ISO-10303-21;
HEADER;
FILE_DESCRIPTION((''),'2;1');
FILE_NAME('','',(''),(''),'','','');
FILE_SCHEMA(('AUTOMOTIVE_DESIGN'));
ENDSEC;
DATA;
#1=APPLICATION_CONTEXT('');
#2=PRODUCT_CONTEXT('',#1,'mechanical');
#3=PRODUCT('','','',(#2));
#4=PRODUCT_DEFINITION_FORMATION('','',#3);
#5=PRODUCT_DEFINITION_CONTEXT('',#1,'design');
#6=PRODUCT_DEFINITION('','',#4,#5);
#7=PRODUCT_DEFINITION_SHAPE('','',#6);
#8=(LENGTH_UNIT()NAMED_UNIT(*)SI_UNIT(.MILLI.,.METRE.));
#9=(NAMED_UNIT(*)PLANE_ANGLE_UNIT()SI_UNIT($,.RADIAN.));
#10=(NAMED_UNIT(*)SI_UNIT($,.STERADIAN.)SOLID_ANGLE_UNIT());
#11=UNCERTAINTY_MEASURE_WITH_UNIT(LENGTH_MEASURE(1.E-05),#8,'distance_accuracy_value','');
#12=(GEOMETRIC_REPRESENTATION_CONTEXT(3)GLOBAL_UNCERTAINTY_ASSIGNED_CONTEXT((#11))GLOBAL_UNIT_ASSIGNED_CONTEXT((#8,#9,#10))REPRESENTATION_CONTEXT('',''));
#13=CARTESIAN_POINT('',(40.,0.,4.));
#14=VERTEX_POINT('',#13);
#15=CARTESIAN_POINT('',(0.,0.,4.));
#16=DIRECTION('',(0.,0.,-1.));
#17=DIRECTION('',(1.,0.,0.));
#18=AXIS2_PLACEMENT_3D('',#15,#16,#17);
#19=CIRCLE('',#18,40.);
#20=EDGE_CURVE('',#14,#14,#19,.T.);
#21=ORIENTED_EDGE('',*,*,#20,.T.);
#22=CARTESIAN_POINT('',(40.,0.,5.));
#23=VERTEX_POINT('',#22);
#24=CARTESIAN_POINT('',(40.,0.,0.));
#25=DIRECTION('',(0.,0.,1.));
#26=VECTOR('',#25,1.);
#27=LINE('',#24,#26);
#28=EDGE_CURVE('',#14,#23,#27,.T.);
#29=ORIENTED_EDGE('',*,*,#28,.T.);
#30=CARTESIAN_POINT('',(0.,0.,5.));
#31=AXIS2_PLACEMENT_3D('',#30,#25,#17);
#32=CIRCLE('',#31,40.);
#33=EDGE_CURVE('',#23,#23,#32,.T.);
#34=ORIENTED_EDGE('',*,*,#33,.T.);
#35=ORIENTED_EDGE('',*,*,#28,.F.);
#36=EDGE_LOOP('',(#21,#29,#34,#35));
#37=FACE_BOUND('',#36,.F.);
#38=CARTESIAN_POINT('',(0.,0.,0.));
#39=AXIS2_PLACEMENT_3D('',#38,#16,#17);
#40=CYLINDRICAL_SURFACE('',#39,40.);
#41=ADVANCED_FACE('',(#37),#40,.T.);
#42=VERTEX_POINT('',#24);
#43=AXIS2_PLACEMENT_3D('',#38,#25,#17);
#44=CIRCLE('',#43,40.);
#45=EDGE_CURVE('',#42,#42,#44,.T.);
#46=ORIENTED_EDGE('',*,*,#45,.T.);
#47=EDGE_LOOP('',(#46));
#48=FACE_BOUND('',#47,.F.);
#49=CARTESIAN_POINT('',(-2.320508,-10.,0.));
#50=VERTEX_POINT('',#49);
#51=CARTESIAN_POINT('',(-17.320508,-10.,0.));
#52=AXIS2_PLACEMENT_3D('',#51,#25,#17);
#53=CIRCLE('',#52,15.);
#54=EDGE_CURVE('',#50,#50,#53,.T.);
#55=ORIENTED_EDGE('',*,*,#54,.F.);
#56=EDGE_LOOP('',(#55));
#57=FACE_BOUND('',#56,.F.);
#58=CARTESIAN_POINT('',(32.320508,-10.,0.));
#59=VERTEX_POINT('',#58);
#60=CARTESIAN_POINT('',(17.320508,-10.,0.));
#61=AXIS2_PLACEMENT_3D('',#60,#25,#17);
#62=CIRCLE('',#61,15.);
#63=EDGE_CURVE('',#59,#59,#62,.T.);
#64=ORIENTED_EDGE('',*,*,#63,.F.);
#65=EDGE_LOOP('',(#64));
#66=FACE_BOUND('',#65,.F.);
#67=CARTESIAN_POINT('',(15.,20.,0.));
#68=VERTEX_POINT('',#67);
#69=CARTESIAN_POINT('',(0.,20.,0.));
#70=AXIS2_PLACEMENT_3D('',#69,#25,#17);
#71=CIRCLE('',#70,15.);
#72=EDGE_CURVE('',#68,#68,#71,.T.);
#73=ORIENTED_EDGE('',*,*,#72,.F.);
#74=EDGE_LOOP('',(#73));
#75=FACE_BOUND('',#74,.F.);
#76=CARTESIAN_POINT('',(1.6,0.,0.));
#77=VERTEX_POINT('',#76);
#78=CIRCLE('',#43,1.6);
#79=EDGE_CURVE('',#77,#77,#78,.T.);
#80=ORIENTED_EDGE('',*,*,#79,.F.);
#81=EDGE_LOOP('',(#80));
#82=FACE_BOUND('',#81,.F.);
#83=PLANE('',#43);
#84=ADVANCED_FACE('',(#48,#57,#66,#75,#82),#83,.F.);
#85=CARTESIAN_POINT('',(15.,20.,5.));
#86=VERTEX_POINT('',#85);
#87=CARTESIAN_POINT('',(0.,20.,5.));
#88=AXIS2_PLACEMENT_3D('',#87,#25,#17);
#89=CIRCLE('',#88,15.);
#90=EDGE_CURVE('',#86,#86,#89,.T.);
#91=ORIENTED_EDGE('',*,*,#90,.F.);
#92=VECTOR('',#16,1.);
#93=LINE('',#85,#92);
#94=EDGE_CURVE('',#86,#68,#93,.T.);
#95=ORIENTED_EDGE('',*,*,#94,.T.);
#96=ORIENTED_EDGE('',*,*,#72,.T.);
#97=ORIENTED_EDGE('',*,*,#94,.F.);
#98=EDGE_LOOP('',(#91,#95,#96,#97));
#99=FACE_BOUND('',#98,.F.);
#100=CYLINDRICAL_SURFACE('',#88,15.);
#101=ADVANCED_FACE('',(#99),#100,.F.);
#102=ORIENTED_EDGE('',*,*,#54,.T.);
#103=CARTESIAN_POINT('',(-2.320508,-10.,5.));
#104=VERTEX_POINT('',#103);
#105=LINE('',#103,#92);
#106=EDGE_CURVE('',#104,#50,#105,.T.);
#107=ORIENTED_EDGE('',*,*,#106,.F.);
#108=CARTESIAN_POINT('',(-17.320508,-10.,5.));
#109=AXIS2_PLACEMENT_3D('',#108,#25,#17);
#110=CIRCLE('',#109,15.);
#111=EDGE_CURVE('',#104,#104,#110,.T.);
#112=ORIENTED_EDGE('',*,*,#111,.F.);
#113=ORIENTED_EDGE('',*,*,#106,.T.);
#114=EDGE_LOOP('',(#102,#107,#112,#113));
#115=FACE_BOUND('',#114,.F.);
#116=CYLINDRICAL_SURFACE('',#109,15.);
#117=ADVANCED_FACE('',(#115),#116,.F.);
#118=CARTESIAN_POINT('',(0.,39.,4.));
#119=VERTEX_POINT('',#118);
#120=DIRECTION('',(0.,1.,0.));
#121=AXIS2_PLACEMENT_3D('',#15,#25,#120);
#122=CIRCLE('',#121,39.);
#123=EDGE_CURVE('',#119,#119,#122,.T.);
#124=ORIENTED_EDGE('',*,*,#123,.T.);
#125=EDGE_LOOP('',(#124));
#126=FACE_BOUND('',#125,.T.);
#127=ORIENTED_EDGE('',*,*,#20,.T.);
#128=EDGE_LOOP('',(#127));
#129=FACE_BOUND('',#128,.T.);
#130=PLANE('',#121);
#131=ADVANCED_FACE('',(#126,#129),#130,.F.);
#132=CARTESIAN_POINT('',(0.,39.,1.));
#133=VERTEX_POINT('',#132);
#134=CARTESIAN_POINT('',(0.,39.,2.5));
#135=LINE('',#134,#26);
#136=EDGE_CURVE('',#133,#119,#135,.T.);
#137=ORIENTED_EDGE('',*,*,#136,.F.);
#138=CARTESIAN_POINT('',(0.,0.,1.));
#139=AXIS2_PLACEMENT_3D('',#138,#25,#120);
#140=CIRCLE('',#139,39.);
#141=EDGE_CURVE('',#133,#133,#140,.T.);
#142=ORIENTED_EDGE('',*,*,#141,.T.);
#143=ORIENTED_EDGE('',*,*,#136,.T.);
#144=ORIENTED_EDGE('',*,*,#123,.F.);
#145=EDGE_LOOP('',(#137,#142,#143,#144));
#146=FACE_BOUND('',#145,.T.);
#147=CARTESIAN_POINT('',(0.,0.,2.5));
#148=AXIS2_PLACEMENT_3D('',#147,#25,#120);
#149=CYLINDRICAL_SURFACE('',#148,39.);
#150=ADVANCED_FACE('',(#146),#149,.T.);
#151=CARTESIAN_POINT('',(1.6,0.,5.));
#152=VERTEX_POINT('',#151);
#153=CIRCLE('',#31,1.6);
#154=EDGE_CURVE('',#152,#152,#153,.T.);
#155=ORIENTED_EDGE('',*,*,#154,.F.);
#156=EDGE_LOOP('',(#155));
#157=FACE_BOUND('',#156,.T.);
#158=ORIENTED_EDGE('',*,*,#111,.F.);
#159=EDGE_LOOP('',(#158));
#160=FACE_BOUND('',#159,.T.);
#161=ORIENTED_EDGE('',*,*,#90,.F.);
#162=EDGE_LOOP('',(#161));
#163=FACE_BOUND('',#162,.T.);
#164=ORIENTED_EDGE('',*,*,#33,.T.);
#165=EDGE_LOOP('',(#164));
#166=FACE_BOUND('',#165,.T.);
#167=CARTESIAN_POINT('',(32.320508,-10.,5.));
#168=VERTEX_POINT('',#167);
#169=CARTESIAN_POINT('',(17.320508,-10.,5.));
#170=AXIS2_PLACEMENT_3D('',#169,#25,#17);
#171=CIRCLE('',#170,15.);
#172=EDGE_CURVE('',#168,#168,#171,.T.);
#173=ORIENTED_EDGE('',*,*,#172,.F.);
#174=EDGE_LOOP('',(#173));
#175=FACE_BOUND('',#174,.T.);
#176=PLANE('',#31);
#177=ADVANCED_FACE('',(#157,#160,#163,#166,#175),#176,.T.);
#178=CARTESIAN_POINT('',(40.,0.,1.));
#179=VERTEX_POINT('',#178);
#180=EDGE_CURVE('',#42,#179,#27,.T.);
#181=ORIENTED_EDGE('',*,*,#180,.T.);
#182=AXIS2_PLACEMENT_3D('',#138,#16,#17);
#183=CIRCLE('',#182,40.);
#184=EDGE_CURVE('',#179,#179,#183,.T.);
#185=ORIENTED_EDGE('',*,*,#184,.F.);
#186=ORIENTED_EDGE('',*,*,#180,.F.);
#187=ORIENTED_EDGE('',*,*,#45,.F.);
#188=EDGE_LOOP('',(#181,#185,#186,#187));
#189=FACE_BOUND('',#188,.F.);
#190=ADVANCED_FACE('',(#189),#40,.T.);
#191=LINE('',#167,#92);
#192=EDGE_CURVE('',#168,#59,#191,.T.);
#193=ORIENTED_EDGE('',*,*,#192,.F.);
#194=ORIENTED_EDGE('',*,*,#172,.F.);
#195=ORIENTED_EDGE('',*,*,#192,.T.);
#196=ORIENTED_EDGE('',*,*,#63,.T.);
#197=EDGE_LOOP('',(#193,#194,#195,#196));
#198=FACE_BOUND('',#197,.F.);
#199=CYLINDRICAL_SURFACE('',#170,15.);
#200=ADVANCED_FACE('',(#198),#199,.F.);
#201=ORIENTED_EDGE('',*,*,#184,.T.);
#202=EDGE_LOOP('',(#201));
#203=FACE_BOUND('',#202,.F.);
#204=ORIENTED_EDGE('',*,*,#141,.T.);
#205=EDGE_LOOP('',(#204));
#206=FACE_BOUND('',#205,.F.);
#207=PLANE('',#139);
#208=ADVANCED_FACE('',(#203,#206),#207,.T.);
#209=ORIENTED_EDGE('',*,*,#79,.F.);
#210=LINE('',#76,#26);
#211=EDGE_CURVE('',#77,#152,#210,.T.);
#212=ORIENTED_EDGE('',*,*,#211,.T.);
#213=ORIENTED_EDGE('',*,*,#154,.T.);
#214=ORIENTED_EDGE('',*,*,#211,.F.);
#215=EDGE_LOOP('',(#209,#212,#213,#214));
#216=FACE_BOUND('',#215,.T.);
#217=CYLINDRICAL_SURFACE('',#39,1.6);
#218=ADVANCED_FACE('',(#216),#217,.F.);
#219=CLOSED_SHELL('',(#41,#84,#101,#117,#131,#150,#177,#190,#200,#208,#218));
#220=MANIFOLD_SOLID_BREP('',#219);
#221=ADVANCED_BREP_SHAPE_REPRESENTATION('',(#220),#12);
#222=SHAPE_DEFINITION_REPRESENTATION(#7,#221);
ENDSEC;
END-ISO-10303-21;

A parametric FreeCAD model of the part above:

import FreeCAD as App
import Part
import Sketcher
from FreeCAD import Vector
Q = App.Units.Quantity

doc = App.newDocument("Part")
params = doc.addObject("Spreadsheet::Sheet", "Params")
for row, (alias, value) in enumerate([
    ("sketch1_diameter", "80 mm"),
    ("sketch1_diameter2", "3.2 mm"),
    ("pad1_length", "5 mm"),
    ("sketch2_width", "1 mm"),
    ("sketch2_height", "3 mm"),
    ("groove_angle", "360 deg"),
    ("sketch3_diameter", "30 mm"),
    ("pocket1_length", "25 mm"),
], start=1):
    params.set(f"A{row}", alias)
    params.set(f"B{row}", "=" + value)
    params.setAlias(f"B{row}", alias)

body = doc.addObject("PartDesign::Body", "Body")

sketch1 = body.newObject("Sketcher::SketchObject", "Sketch")
sketch1.AttachmentSupport = (doc.getObject("XY_Plane"), [""])
sketch1.MapMode = "FlatFace"
sketch1.addGeometry([
    Part.Circle(Vector(0, 0, 0), Vector(0, 0, 1), 40),
    Part.Circle(Vector(0, 0, 0), Vector(0, 0, 1), 1.6),
], False)
sketch1.addConstraint([
    Sketcher.Constraint("Coincident", 0, 3, -1, 1),
    Sketcher.Constraint("Coincident", 1, 3, -1, 1),
    Sketcher.Constraint("Diameter", 0, Q("80 mm")),
    Sketcher.Constraint("Diameter", 1, Q("3.2 mm")),
])
sketch1.setExpression("Constraints[2]", "Params.sketch1_diameter")
sketch1.setExpression("Constraints[3]", "Params.sketch1_diameter2")
pad1 = body.newObject("PartDesign::Pad", "Pad")
pad1.Profile = sketch1
pad1.setExpression("Length", "Params.pad1_length")

sketch2 = body.newObject("Sketcher::SketchObject", "Sketch001")
sketch2.AttachmentSupport = (doc.getObject("YZ_Plane"), [""])
sketch2.MapMode = "FlatFace"
sketch2.addGeometry([
    Part.LineSegment(Vector(39, 4, 0), Vector(39, 1, 0)),
    Part.LineSegment(Vector(39, 1, 0), Vector(40, 1, 0)),
    Part.LineSegment(Vector(40, 1, 0), Vector(40, 4, 0)),
    Part.LineSegment(Vector(40, 4, 0), Vector(39, 4, 0)),
], False)
sketch2.addConstraint([
    Sketcher.Constraint("Coincident", 0, 2, 1, 1),
    Sketcher.Constraint("Coincident", 1, 2, 2, 1),
    Sketcher.Constraint("Coincident", 2, 2, 3, 1),
    Sketcher.Constraint("Coincident", 3, 2, 0, 1),
    Sketcher.Constraint("Vertical", 0),
    Sketcher.Constraint("Horizontal", 1),
    Sketcher.Constraint("Vertical", 2),
    Sketcher.Constraint("Horizontal", 3),
    Sketcher.Constraint("DistanceX", 1, 1, 1, 2, Q("1 mm")),
    Sketcher.Constraint("DistanceY", 0, 2, 0, 1, Q("3 mm")),
    Sketcher.Constraint("DistanceX", -1, 1, 0, 2, Q("39 mm")),
    Sketcher.Constraint("DistanceY", -1, 1, 0, 2, Q("1 mm")),
])
sketch2.setExpression("Constraints[8]", "Params.sketch2_width")
sketch2.setExpression("Constraints[9]", "Params.sketch2_height")
groove = body.newObject("PartDesign::Groove", "Groove")
groove.Profile = sketch2
groove.ReferenceAxis = (sketch2, ["V_Axis"])
groove.setExpression("Angle", "Params.groove_angle")

sketch3 = body.newObject("Sketcher::SketchObject", "Sketch002")
sketch3.AttachmentSupport = (doc.getObject("XY_Plane"), [""])
sketch3.MapMode = "FlatFace"
sketch3.AttachmentOffset = App.Placement(Vector(0, 0, 5), App.Rotation())
sketch3.addGeometry([
    Part.Circle(Vector(0, 20, 0), Vector(0, 0, 1), 15),
    Part.Circle(Vector(-17, -10, 0), Vector(0, 0, 1), 15),
    Part.Circle(Vector(17, -10, 0), Vector(0, 0, 1), 15),
], False)
sketch3.addConstraint([
    Sketcher.Constraint("Equal", 0, 1),
    Sketcher.Constraint("Equal", 1, 2),
    Sketcher.Constraint("Symmetric", 1, 3, 2, 3, -2),
    Sketcher.Constraint("PointOnObject", 0, 3, -2),
    Sketcher.Constraint("Diameter", 0, Q("30 mm")),
    Sketcher.Constraint("DistanceY", -1, 1, 0, 3, Q("20 mm")),
    Sketcher.Constraint("DistanceY", 1, 3, -1, 1, Q("10 mm")),
    Sketcher.Constraint("DistanceX", 1, 3, -1, 1, Q("17.320508 mm")),
])
sketch3.setExpression("Constraints[4]", "Params.sketch3_diameter")
pocket1 = body.newObject("PartDesign::Pocket", "Pocket")
pocket1.Profile = sketch3
pocket1.setExpression("Length", "Params.pocket1_length")

doc.recompute()
